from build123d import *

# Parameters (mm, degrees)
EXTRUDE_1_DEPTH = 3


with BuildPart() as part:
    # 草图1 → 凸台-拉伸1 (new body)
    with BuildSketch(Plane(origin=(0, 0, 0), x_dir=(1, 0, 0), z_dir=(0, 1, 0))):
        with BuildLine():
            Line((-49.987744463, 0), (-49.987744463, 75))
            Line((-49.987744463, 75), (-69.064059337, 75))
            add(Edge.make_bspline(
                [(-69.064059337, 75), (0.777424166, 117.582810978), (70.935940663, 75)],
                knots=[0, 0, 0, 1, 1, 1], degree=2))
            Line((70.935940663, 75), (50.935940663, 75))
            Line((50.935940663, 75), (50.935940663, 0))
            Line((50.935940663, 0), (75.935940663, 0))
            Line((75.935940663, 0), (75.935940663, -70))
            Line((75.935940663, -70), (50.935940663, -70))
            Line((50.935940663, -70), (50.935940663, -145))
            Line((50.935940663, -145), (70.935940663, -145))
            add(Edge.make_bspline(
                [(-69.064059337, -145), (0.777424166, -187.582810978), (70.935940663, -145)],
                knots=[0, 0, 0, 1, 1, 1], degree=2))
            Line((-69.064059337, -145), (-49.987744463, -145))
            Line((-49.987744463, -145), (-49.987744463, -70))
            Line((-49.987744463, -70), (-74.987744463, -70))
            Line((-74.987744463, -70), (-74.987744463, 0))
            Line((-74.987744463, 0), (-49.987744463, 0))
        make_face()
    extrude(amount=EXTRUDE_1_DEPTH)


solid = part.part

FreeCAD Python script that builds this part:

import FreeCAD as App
import Part
import Sketcher
Q = App.Units.Quantity

doc = App.newDocument("Part")
body = doc.addObject("PartDesign::Body", "Body")

sketch1 = body.newObject("Sketcher::SketchObject", "Sketch")
sketch1.AttachmentSupport = (doc.getObject("XZ_Plane"), [""])
sketch1.MapMode = "FlatFace"
sketch1.addGeometry([
    Part.LineSegment(App.Vector(-49.987744, -75, 0), App.Vector(-49.987744, 0, 0)),
    Part.LineSegment(App.Vector(-49.987744, 0, 0), App.Vector(-74.987744, 0, 0)),
    Part.LineSegment(App.Vector(-74.987744, 0, 0), App.Vector(-74.987744, 70, 0)),
    Part.LineSegment(App.Vector(-74.987744, 70, 0), App.Vector(-49.987744, 70, 0)),
    Part.LineSegment(App.Vector(-49.987744, 70, 0), App.Vector(-49.987744, 145, 0)),
    Part.LineSegment(App.Vector(-49.987744, 145, 0), App.Vector(-69.064059, 145, 0)),
    Part.BSplineCurve([App.Vector(-69.064059, 145, 0), App.Vector(0.777424, 187.582811, 0), App.Vector(70.935941, 145, 0)], [3, 3], [0, 1], False, 2, [1, 1, 1], False),
    Part.LineSegment(App.Vector(70.935941, 145, 0), App.Vector(50.935941, 145, 0)),
    Part.LineSegment(App.Vector(50.935941, 145, 0), App.Vector(50.935941, 70, 0)),
    Part.LineSegment(App.Vector(50.935941, 70, 0), App.Vector(75.935941, 70, 0)),
    Part.LineSegment(App.Vector(75.935941, 70, 0), App.Vector(75.935941, 0, 0)),
    Part.LineSegment(App.Vector(75.935941, 0, 0), App.Vector(50.935941, 0, 0)),
    Part.LineSegment(App.Vector(50.935941, 0, 0), App.Vector(50.935941, -75, 0)),
    Part.LineSegment(App.Vector(50.935941, -75, 0), App.Vector(70.935941, -75, 0)),
    Part.BSplineCurve([App.Vector(-69.064059, -75, 0), App.Vector(0.777424, -117.582811, 0), App.Vector(70.935941, -75, 0)], [3, 3], [0, 1], False, 2, [1, 1, 1], False),
    Part.LineSegment(App.Vector(-69.064059, -75, 0), App.Vector(-49.987744, -75, 0)),
], False)
sketch1.addConstraint([
    Sketcher.Constraint("Block", 6),
    Sketcher.Constraint("Block", 14),
    Sketcher.Constraint("Coincident", 0, 2, 1, 1),
    Sketcher.Constraint("Coincident", 1, 2, 2, 1),
    Sketcher.Constraint("Coincident", 2, 2, 3, 1),
    Sketcher.Constraint("Coincident", 3, 2, 4, 1),
    Sketcher.Constraint("Coincident", 4, 2, 5, 1),
    Sketcher.Constraint("Coincident", 5, 2, 6, 1),
    Sketcher.Constraint("Coincident", 6, 2, 7, 1),
    Sketcher.Constraint("Coincident", 7, 2, 8, 1),
    Sketcher.Constraint("Coincident", 8, 2, 9, 1),
    Sketcher.Constraint("Coincident", 9, 2, 10, 1),
    Sketcher.Constraint("Coincident", 10, 2, 11, 1),
    Sketcher.Constraint("Coincident", 11, 2, 12, 1),
    Sketcher.Constraint("Coincident", 12, 2, 13, 1),
    Sketcher.Constraint("Coincident", 13, 2, 14, 2),
    Sketcher.Constraint("Coincident", 14, 1, 15, 1),
    Sketcher.Constraint("Coincident", 15, 2, 0, 1),
    Sketcher.Constraint("Vertical", 0),
    Sketcher.Constraint("Horizontal", 1),
    Sketcher.Constraint("Vertical", 2),
    Sketcher.Constraint("Horizontal", 3),
    Sketcher.Constraint("Vertical", 4),
    Sketcher.Constraint("Horizontal", 5),
    Sketcher.Constraint("Horizontal", 7),
    Sketcher.Constraint("Vertical", 8),
    Sketcher.Constraint("Horizontal", 9),
    Sketcher.Constraint("Vertical", 10),
    Sketcher.Constraint("Horizontal", 11),
    Sketcher.Constraint("Vertical", 12),
    Sketcher.Constraint("Horizontal", 13),
    Sketcher.Constraint("Horizontal", 15),
    Sketcher.Constraint("PointOnObject", 0, 2, -1),
    Sketcher.Constraint("PointOnObject", 10, 2, -1),
    Sketcher.Constraint("DistanceX", 1, 2, 1, 1, Q("25 mm")),
    Sketcher.Constraint("DistanceX", 3, 1, 3, 2, Q("25 mm")),
    Sketcher.Constraint("DistanceX", 7, 2, 7, 1, Q("20 mm")),
    Sketcher.Constraint("DistanceX", 9, 1, 9, 2, Q("25 mm")),
    Sketcher.Constraint("DistanceX", 11, 2, 11, 1, Q("25 mm")),
    Sketcher.Constraint("DistanceY", 2, 1, 2, 2, Q("70 mm")),
    Sketcher.Constraint("DistanceY", 8, 2, 8, 1, Q("75 mm")),
    Sketcher.Constraint("DistanceX", 5, 2, 5, 1, Q("19.076315 mm")),
])
pad1 = body.newObject("PartDesign::Pad", "Pad")
pad1.Profile = sketch1
pad1.Length = 3
pad1.Reversed = True

doc.recompute()
